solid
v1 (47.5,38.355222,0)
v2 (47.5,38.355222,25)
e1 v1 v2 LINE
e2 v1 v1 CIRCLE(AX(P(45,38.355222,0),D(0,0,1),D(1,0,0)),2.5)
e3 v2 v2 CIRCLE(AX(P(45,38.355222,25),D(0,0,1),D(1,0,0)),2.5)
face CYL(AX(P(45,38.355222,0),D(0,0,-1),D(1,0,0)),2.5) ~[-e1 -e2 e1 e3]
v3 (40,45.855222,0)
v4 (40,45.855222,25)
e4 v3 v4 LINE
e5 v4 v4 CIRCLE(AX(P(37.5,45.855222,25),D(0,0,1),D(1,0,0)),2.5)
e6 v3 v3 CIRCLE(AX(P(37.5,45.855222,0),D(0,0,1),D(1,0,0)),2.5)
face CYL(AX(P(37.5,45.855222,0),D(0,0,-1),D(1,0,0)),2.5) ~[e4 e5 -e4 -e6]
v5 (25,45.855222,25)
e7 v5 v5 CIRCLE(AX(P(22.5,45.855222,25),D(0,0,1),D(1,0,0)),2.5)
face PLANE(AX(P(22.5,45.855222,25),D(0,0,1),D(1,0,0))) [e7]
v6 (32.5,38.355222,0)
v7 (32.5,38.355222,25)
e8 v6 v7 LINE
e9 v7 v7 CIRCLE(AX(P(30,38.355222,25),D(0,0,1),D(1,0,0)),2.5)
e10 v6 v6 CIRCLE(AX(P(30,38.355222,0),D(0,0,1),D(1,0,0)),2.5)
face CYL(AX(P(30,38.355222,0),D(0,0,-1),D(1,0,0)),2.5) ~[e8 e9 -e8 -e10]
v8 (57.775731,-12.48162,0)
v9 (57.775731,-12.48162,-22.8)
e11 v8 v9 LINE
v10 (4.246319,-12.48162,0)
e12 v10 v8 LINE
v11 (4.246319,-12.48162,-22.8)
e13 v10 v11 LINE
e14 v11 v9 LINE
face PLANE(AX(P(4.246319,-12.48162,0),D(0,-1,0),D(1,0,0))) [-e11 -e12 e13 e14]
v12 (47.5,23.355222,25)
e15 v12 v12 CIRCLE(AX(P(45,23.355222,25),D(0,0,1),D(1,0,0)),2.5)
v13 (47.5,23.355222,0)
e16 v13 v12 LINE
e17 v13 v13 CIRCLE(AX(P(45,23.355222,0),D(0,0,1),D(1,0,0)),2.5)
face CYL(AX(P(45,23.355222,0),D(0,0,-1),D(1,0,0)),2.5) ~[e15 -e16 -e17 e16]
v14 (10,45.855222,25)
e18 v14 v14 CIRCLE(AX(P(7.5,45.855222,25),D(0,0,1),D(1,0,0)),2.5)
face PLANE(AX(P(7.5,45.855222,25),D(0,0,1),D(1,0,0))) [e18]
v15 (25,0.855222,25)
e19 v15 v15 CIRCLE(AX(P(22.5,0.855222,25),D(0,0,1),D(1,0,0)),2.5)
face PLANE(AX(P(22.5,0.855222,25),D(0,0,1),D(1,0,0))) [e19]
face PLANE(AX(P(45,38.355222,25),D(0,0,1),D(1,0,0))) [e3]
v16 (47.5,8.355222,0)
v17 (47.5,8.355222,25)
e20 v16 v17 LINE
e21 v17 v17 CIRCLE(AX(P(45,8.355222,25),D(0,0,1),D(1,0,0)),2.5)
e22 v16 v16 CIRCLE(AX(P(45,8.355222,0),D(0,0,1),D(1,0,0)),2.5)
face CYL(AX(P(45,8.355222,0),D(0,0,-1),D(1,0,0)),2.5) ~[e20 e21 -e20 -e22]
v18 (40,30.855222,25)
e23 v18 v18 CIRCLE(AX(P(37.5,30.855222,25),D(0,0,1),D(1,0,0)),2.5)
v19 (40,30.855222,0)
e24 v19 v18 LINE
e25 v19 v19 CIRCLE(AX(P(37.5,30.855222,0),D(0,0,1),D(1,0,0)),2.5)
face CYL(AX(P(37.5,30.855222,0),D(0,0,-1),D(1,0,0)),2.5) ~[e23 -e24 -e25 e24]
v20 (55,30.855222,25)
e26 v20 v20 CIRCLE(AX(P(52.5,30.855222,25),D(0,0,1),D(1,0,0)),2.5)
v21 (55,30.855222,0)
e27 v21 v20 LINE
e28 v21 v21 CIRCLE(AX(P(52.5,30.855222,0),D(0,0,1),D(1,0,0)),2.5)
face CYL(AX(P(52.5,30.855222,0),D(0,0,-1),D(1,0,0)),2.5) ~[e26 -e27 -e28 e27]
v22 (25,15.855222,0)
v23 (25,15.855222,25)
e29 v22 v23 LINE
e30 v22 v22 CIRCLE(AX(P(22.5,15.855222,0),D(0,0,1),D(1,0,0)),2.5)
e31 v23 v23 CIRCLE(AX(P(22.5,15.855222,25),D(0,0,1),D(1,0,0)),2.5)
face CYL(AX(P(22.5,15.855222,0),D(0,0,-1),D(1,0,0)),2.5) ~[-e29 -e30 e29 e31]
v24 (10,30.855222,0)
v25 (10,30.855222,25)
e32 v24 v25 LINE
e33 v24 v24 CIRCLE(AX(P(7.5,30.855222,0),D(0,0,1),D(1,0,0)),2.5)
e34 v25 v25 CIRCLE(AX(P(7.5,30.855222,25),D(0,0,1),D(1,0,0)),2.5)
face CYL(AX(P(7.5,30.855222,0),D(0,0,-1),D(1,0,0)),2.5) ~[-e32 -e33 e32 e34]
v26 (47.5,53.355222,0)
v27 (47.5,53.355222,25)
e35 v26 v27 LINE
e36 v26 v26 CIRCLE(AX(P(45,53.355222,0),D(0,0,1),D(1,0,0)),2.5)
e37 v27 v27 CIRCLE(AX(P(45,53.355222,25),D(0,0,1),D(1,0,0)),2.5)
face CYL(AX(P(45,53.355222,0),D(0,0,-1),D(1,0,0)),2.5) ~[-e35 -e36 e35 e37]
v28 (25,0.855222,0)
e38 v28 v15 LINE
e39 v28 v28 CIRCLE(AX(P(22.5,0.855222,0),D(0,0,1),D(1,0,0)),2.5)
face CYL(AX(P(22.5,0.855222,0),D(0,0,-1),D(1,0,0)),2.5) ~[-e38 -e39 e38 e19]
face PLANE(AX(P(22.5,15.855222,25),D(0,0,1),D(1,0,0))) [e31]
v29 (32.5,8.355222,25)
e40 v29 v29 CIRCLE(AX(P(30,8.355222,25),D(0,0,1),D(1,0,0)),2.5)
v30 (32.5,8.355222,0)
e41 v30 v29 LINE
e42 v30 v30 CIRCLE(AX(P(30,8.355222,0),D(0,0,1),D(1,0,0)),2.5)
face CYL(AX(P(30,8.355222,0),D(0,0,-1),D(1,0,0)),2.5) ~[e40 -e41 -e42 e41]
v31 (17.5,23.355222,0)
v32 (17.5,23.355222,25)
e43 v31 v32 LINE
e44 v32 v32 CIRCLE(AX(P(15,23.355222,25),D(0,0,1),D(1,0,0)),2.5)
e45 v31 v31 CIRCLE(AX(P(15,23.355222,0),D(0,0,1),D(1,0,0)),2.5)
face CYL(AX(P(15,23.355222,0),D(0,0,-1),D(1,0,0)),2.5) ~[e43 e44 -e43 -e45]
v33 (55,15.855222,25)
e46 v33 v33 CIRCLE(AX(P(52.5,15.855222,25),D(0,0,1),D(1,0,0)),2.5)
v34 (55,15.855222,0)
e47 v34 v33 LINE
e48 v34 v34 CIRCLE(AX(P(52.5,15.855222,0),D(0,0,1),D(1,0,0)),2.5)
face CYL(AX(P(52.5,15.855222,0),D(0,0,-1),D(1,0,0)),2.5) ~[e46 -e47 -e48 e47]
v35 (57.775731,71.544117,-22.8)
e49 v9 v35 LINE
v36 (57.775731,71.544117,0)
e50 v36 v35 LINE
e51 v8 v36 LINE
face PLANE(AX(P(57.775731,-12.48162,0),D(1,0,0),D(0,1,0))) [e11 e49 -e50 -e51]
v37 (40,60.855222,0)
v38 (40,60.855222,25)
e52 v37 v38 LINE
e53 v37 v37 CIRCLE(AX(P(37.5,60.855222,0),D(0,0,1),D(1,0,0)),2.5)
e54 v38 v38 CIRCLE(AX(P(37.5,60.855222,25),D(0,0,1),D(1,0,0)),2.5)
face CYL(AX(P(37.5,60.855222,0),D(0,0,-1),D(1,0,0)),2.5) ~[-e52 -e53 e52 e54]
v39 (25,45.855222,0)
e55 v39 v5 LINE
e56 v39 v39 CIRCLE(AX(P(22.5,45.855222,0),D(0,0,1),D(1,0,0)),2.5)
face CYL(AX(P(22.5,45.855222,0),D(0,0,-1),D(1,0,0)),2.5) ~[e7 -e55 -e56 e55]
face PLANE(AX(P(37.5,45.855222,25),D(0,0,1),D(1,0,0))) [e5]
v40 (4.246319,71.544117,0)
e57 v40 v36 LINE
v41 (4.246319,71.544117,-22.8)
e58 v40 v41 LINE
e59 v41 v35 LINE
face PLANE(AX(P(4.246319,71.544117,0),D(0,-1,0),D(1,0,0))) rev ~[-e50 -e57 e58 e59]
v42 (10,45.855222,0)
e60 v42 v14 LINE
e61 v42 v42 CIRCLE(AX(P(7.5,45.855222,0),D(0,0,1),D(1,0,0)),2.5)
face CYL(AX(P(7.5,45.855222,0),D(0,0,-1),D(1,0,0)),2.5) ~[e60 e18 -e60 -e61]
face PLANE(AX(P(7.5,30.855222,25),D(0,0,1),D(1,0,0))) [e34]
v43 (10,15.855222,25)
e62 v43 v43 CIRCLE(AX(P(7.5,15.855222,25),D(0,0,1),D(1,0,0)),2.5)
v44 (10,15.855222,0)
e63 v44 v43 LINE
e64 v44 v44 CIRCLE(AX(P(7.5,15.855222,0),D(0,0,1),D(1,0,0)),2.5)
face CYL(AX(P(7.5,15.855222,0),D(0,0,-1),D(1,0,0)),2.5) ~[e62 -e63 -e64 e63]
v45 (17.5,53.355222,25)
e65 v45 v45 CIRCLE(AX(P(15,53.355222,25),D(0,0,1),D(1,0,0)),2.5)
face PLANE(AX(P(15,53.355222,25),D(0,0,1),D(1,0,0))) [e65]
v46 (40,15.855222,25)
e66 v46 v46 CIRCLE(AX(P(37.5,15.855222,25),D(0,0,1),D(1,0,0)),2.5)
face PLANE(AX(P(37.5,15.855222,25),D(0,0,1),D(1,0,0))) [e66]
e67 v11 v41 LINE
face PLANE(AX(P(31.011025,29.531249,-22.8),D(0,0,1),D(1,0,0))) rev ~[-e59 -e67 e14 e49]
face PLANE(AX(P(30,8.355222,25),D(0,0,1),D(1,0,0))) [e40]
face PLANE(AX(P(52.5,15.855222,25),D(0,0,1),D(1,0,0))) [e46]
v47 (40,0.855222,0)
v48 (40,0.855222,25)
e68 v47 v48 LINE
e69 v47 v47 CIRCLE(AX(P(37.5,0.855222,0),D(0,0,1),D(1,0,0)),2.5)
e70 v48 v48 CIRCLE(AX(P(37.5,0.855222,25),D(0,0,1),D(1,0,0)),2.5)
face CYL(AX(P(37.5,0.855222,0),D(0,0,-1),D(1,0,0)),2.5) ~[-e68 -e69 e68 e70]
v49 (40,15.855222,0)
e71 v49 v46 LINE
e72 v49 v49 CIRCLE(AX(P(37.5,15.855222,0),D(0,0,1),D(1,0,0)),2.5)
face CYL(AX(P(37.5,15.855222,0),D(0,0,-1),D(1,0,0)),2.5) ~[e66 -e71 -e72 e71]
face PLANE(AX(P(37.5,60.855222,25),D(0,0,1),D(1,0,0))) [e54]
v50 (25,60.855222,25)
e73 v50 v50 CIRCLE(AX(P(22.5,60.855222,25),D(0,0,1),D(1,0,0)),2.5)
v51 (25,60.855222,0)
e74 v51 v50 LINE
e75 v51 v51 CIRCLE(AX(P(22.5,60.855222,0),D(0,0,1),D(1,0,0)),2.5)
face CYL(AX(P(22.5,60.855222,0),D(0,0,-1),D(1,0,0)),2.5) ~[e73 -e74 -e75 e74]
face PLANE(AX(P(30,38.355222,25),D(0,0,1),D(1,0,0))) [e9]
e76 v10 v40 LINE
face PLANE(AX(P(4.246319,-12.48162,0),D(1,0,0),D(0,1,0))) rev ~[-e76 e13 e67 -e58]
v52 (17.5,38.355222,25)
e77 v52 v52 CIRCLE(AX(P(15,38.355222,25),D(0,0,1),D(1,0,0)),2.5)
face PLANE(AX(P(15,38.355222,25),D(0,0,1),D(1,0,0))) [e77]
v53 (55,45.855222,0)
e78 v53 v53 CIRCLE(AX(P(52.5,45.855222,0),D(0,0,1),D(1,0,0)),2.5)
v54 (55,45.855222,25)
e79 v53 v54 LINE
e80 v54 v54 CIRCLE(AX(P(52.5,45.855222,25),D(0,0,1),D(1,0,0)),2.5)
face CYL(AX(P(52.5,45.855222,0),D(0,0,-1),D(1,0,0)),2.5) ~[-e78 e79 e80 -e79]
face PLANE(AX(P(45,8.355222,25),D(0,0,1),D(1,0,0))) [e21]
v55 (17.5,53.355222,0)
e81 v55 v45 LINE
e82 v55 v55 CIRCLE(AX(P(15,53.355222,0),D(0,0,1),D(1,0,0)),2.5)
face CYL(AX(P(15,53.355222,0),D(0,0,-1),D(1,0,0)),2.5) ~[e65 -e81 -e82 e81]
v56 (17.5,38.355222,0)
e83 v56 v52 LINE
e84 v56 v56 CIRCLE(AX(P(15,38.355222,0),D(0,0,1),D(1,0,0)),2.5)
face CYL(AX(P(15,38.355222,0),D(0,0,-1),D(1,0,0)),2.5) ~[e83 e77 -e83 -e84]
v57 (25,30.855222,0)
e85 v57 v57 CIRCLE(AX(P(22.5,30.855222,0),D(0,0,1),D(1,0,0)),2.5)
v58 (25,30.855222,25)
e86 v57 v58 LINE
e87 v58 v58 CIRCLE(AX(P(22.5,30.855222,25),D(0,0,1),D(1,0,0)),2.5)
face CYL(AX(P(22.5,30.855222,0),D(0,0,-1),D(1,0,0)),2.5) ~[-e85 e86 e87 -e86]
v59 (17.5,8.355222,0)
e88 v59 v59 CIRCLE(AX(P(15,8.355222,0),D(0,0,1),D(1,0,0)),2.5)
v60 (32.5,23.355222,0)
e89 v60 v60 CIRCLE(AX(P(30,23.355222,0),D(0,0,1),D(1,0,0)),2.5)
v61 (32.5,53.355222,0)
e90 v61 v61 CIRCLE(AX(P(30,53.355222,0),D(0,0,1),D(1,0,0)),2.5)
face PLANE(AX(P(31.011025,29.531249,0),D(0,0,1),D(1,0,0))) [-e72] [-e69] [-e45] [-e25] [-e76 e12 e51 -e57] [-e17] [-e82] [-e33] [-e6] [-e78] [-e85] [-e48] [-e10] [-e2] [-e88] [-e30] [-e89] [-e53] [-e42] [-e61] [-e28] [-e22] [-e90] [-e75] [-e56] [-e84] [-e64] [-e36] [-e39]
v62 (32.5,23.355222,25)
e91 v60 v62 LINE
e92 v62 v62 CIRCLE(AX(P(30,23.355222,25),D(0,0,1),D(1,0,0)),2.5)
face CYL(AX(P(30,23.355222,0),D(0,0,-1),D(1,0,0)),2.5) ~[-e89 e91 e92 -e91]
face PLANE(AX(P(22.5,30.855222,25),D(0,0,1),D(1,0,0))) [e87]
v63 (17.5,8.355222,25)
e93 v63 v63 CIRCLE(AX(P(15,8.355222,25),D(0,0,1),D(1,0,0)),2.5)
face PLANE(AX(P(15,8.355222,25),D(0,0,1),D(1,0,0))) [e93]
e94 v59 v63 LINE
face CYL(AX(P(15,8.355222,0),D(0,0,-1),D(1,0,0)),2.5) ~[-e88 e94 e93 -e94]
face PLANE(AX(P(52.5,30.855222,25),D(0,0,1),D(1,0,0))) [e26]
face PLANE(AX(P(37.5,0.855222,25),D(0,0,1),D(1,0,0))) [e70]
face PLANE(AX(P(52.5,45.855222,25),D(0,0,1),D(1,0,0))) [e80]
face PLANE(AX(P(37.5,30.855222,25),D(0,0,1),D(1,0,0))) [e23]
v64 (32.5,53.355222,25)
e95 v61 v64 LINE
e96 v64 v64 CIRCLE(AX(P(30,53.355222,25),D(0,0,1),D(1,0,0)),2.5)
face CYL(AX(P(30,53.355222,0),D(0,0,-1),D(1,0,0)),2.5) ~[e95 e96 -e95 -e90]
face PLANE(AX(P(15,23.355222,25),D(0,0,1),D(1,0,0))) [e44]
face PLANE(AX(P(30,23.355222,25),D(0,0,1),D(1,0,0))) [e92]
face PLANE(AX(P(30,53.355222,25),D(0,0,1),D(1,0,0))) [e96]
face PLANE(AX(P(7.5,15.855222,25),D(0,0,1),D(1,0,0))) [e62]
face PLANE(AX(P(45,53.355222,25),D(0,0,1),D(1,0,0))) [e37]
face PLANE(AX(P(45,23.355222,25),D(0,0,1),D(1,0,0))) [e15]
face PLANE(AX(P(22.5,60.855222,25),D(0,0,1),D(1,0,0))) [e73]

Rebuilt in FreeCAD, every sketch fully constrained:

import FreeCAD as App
import Part
import Sketcher

V = App.Vector


def add_polygon(sketch, points):
    """Adds a closed chain of lines whose ends are joined by coincident constraints."""
    first, n = sketch.GeometryCount, len(points)
    for a, b in zip(points, points[1:] + points[:1]):
        sketch.addGeometry(Part.LineSegment(App.Vector(*a, 0), App.Vector(*b, 0)), False)
    for i in range(n):
        sketch.addConstraint(Sketcher.Constraint("Coincident", first + i, 2, first + (i + 1) % n, 1))

doc = App.newDocument("Part")
body = doc.addObject("PartDesign::Body", "Body")
body.AllowCompound = True

sketch1 = body.newObject("Sketcher::SketchObject", "Sketch")
sketch1.AttachmentSupport = (doc.getObject("XY_Plane"), [""])
sketch1.MapMode = "FlatFace"
sketch1.addGeometry(Part.Circle(V(22.5, 60.9, 0), V(0, 0, 1), 2.5), False)
sketch1.addGeometry(Part.Circle(V(30, 53.4, 0), V(0, 0, 1), 2.5), False)
sketch1.addGeometry(Part.Circle(V(30, 23.4, 0), V(0, 0, 1), 2.5), False)
sketch1.addGeometry(Part.Circle(V(30, 8.4, 0), V(0, 0, 1), 2.5), False)
sketch1.addGeometry(Part.Circle(V(22.5, 30.9, 0), V(0, 0, 1), 2.5), False)
sketch1.addGeometry(Part.Circle(V(37.5, 60.9, 0), V(0, 0, 1), 2.5), False)
sketch1.addGeometry(Part.Circle(V(22.5, 15.9, 0), V(0, 0, 1), 2.5), False)
sketch1.addGeometry(Part.Circle(V(22.5, 0.9, 0), V(0, 0, 1), 2.5), False)
sketch1.addGeometry(Part.Circle(V(37.5, 45.9, 0), V(0, 0, 1), 2.5), False)
sketch1.addGeometry(Part.Circle(V(37.5, 15.9, 0), V(0, 0, 1), 2.5), False)
sketch1.addGeometry(Part.Circle(V(22.5, 45.9, 0), V(0, 0, 1), 2.5), False)
sketch1.addGeometry(Part.Circle(V(30, 38.4, 0), V(0, 0, 1), 2.5), False)
sketch1.addGeometry(Part.Circle(V(37.5, 30.9, 0), V(0, 0, 1), 2.5), False)
sketch1.addGeometry(Part.Circle(V(45, 53.4, 0), V(0, 0, 1), 2.5), False)
sketch1.addGeometry(Part.Circle(V(45, 38.4, 0), V(0, 0, 1), 2.5), False)
sketch1.addGeometry(Part.Circle(V(45, 23.4, 0), V(0, 0, 1), 2.5), False)
sketch1.addGeometry(Part.Circle(V(37.5, 0.9, 0), V(0, 0, 1), 2.5), False)
sketch1.addGeometry(Part.Circle(V(45, 8.4, 0), V(0, 0, 1), 2.5), False)
sketch1.addGeometry(Part.Circle(V(52.5, 15.9, 0), V(0, 0, 1), 2.5), False)
sketch1.addGeometry(Part.Circle(V(52.5, 30.9, 0), V(0, 0, 1), 2.5), False)
sketch1.addGeometry(Part.Circle(V(52.5, 45.9, 0), V(0, 0, 1), 2.5), False)
sketch1.addGeometry(Part.Circle(V(15, 53.4, 0), V(0, 0, 1), 2.5), False)
sketch1.addGeometry(Part.Circle(V(15, 38.4, 0), V(0, 0, 1), 2.5), False)
sketch1.addGeometry(Part.Circle(V(15, 23.4, 0), V(0, 0, 1), 2.5), False)
sketch1.addGeometry(Part.Circle(V(15, 8.4, 0), V(0, 0, 1), 2.5), False)
sketch1.addGeometry(Part.Circle(V(7.5, 15.9, 0), V(0, 0, 1), 2.5), False)
sketch1.addGeometry(Part.Circle(V(7.5, 30.9, 0), V(0, 0, 1), 2.5), False)
sketch1.addGeometry(Part.Circle(V(7.5, 45.9, 0), V(0, 0, 1), 2.5), False)
sketch1.addConstraint(Sketcher.Constraint("Equal", 0, 1))
sketch1.addConstraint(Sketcher.Constraint("Equal", 1, 2))
sketch1.addConstraint(Sketcher.Constraint("Equal", 2, 3))
sketch1.addConstraint(Sketcher.Constraint("Equal", 3, 4))
sketch1.addConstraint(Sketcher.Constraint("Equal", 4, 5))
sketch1.addConstraint(Sketcher.Constraint("Equal", 5, 6))
sketch1.addConstraint(Sketcher.Constraint("Equal", 6, 7))
sketch1.addConstraint(Sketcher.Constraint("Equal", 7, 8))
sketch1.addConstraint(Sketcher.Constraint("Equal", 8, 9))
sketch1.addConstraint(Sketcher.Constraint("Equal", 9, 10))
sketch1.addConstraint(Sketcher.Constraint("Equal", 10, 11))
sketch1.addConstraint(Sketcher.Constraint("Equal", 11, 12))
sketch1.addConstraint(Sketcher.Constraint("Equal", 12, 13))
sketch1.addConstraint(Sketcher.Constraint("Equal", 13, 14))
sketch1.addConstraint(Sketcher.Constraint("Equal", 14, 15))
sketch1.addConstraint(Sketcher.Constraint("Equal", 15, 16))
sketch1.addConstraint(Sketcher.Constraint("Equal", 16, 17))
sketch1.addConstraint(Sketcher.Constraint("Equal", 17, 18))
sketch1.addConstraint(Sketcher.Constraint("Equal", 18, 19))
sketch1.addConstraint(Sketcher.Constraint("Equal", 19, 20))
sketch1.addConstraint(Sketcher.Constraint("Equal", 20, 21))
sketch1.addConstraint(Sketcher.Constraint("Equal", 21, 22))
sketch1.addConstraint(Sketcher.Constraint("Equal", 22, 23))
sketch1.addConstraint(Sketcher.Constraint("Equal", 23, 24))
sketch1.addConstraint(Sketcher.Constraint("Equal", 24, 25))
sketch1.addConstraint(Sketcher.Constraint("Equal", 25, 26))
sketch1.addConstraint(Sketcher.Constraint("Equal", 26, 27))
sketch1.addConstraint(Sketcher.Constraint("Horizontal", 0, 3, 5, 3))
sketch1.addConstraint(Sketcher.Constraint("Horizontal", 6, 3, 9, 3))
sketch1.addConstraint(Sketcher.Constraint("Horizontal", 8, 3, 10, 3))
sketch1.addConstraint(Sketcher.Constraint("Horizontal", 4, 3, 12, 3))
sketch1.addConstraint(Sketcher.Constraint("Horizontal", 1, 3, 13, 3))
sketch1.addConstraint(Sketcher.Constraint("Horizontal", 11, 3, 14, 3))
sketch1.addConstraint(Sketcher.Constraint("Horizontal", 2, 3, 15, 3))
sketch1.addConstraint(Sketcher.Constraint("Horizontal", 7, 3, 16, 3))
sketch1.addConstraint(Sketcher.Constraint("Horizontal", 3, 3, 17, 3))
sketch1.addConstraint(Sketcher.Constraint("Horizontal", 9, 3, 18, 3))
sketch1.addConstraint(Sketcher.Constraint("Horizontal", 12, 3, 19, 3))
sketch1.addConstraint(Sketcher.Constraint("Horizontal", 10, 3, 20, 3))
sketch1.addConstraint(Sketcher.Constraint("Horizontal", 13, 3, 21, 3))
sketch1.addConstraint(Sketcher.Constraint("Horizontal", 14, 3, 22, 3))
sketch1.addConstraint(Sketcher.Constraint("Horizontal", 15, 3, 23, 3))
sketch1.addConstraint(Sketcher.Constraint("Horizontal", 17, 3, 24, 3))
sketch1.addConstraint(Sketcher.Constraint("Horizontal", 18, 3, 25, 3))
sketch1.addConstraint(Sketcher.Constraint("Horizontal", 19, 3, 26, 3))
sketch1.addConstraint(Sketcher.Constraint("Horizontal", 20, 3, 27, 3))
sketch1.addConstraint(Sketcher.Constraint("Vertical", 1, 3, 2, 3))
sketch1.addConstraint(Sketcher.Constraint("Vertical", 2, 3, 3, 3))
sketch1.addConstraint(Sketcher.Constraint("Vertical", 0, 3, 4, 3))
sketch1.addConstraint(Sketcher.Constraint("Vertical", 4, 3, 6, 3))
sketch1.addConstraint(Sketcher.Constraint("Vertical", 6, 3, 7, 3))
sketch1.addConstraint(Sketcher.Constraint("Vertical", 5, 3, 8, 3))
sketch1.addConstraint(Sketcher.Constraint("Vertical", 8, 3, 9, 3))
sketch1.addConstraint(Sketcher.Constraint("Vertical", 7, 3, 10, 3))
sketch1.addConstraint(Sketcher.Constraint("Vertical", 3, 3, 11, 3))
sketch1.addConstraint(Sketcher.Constraint("Vertical", 9, 3, 12, 3))
sketch1.addConstraint(Sketcher.Constraint("Vertical", 13, 3, 14, 3))
sketch1.addConstraint(Sketcher.Constraint("Vertical", 14, 3, 15, 3))
sketch1.addConstraint(Sketcher.Constraint("Vertical", 12, 3, 16, 3))
sketch1.addConstraint(Sketcher.Constraint("Vertical", 15, 3, 17, 3))
sketch1.addConstraint(Sketcher.Constraint("Vertical", 18, 3, 19, 3))
sketch1.addConstraint(Sketcher.Constraint("Vertical", 19, 3, 20, 3))
sketch1.addConstraint(Sketcher.Constraint("Vertical", 21, 3, 22, 3))
sketch1.addConstraint(Sketcher.Constraint("Vertical", 22, 3, 23, 3))
sketch1.addConstraint(Sketcher.Constraint("Vertical", 23, 3, 24, 3))
sketch1.addConstraint(Sketcher.Constraint("Vertical", 25, 3, 26, 3))
sketch1.addConstraint(Sketcher.Constraint("Vertical", 26, 3, 27, 3))
sketch1.addConstraint(Sketcher.Constraint("Diameter", 0, 5.0))
sketch1.addConstraint(Sketcher.Constraint("DistanceX", -1, 1, 1, 3, 30.0))
sketch1.addConstraint(Sketcher.Constraint("DistanceX", -1, 1, 13, 3, 45.0))
sketch1.addConstraint(Sketcher.Constraint("DistanceX", -1, 1, 21, 3, 15.0))
sketch1.addConstraint(Sketcher.Constraint("DistanceY", 2, 3, 1, 3, 30.0))
sketch1.addConstraint(Sketcher.Constraint("DistanceY", 3, 3, 2, 3, 15.0))
sketch1.addConstraint(Sketcher.Constraint("DistanceY", 4, 3, 0, 3, 30.0))
sketch1.addConstraint(Sketcher.Constraint("DistanceX", 0, 3, 5, 3, 15.0))
sketch1.addConstraint(Sketcher.Constraint("DistanceY", 6, 3, 4, 3, 15.0))
sketch1.addConstraint(Sketcher.Constraint("DistanceY", 7, 3, 6, 3, 15.0))
sketch1.addConstraint(Sketcher.Constraint("DistanceY", 8, 3, 5, 3, 15.0))
sketch1.addConstraint(Sketcher.Constraint("DistanceY", 2, 3, 11, 3, 15.0))
sketch1.addConstraint(Sketcher.Constraint("DistanceX", 9, 3, 18, 3, 15.0))
sketch1.addConstraint(Sketcher.Constraint("DistanceX", 25, 3, 6, 3, 15.0))
sketch1.addConstraint(Sketcher.Constraint("DistanceX", -1, 1, 0, 3, 22.5))
sketch1.addConstraint(Sketcher.Constraint("DistanceY", 1, 3, 0, 3, 7.5))
sketch1.addConstraint(Sketcher.Constraint("DistanceY", -1, 1, 0, 3, 60.855222))
pad1 = body.newObject("PartDesign::Pad", "Pad")
pad1.Profile = sketch1
pad1.Length = 25

sketch2 = body.newObject("Sketcher::SketchObject", "Sketch001")
sketch2.AttachmentSupport = (doc.getObject("XY_Plane"), [""])
sketch2.MapMode = "FlatFace"
add_polygon(sketch2, [(4, 72), (4, -12), (58, -12), (58, 72)])
sketch2.addConstraint(Sketcher.Constraint("Vertical", 0))
sketch2.addConstraint(Sketcher.Constraint("Horizontal", 1))
sketch2.addConstraint(Sketcher.Constraint("Vertical", 2))
sketch2.addConstraint(Sketcher.Constraint("Horizontal", 3))
sketch2.addConstraint(Sketcher.Constraint("DistanceX", 1, 1, 1, 2, 53.529413))
sketch2.addConstraint(Sketcher.Constraint("DistanceY", 0, 2, 0, 1, 84.025737))
sketch2.addConstraint(Sketcher.Constraint("DistanceX", -1, 1, 0, 2, 4.246319))
sketch2.addConstraint(Sketcher.Constraint("DistanceY", 0, 2, -1, 1, 12.48162))
pad2 = body.newObject("PartDesign::Pad", "Pad001")
pad2.Profile = sketch2
pad2.Length = 22.8
pad2.Reversed = True

doc.recompute()
